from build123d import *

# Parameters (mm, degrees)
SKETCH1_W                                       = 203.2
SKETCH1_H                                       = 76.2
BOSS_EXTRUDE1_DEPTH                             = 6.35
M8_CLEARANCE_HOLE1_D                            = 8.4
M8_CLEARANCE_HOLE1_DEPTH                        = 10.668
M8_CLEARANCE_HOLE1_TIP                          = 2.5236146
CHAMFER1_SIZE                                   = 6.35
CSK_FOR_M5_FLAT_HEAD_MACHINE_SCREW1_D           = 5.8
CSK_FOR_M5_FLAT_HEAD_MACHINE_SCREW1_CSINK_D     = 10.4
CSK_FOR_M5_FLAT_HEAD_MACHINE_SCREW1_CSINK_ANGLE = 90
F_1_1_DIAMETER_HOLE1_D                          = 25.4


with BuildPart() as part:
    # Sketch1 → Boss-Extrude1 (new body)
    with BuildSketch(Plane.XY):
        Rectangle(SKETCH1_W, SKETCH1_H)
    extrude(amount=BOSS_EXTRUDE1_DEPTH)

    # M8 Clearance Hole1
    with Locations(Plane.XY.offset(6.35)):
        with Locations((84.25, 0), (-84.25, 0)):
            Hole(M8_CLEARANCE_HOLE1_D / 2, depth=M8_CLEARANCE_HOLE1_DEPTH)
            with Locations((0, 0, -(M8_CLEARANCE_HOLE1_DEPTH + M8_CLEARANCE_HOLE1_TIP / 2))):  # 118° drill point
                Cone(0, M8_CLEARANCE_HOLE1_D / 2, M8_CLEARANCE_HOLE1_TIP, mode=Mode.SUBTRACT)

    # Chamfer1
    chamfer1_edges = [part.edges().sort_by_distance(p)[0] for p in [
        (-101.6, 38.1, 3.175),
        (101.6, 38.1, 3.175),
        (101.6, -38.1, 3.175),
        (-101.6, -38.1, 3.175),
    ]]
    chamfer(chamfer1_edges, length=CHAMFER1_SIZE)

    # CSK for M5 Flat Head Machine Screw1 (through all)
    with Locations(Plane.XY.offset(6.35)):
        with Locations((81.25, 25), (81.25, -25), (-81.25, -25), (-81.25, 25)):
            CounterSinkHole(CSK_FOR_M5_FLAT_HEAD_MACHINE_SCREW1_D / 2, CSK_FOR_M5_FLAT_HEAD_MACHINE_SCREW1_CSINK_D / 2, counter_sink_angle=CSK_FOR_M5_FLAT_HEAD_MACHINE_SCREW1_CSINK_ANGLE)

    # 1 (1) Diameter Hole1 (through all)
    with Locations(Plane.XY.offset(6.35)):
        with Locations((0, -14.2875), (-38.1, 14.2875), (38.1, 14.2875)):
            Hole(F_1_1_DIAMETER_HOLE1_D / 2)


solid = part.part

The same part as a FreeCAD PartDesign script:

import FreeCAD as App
import Part
import Sketcher
from FreeCAD import Vector
Q = App.Units.Quantity


def edges_at(feature, points):
    """Names of the edges that pass closest to the given points."""
    edges = feature.Shape.Edges
    near = lambda p: min(range(len(edges)), key=lambda i: edges[i].distToShape(Part.Vertex(*p))[0])
    return sorted({f"Edge{near(p) + 1}" for p in points})

doc = App.newDocument("Part")
body = doc.addObject("PartDesign::Body", "Body")

sketch1 = doc.addObject("Sketcher::SketchObject", "Sketch")
body.addObject(sketch1)
sketch1.AttachmentSupport = (doc.XY_Plane, [""])
sketch1.MapMode = "FlatFace"
sketch1.addGeometry([
    Part.LineSegment(Vector(-102, 38, 0), Vector(-102, -38, 0)),
    Part.LineSegment(Vector(-102, -38, 0), Vector(102, -38, 0)),
    Part.LineSegment(Vector(102, -38, 0), Vector(102, 38, 0)),
    Part.LineSegment(Vector(102, 38, 0), Vector(-102, 38, 0)),
], False)
sketch1.addConstraint([
    Sketcher.Constraint("Coincident", 0, 2, 1, 1),
    Sketcher.Constraint("Coincident", 1, 2, 2, 1),
    Sketcher.Constraint("Coincident", 2, 2, 3, 1),
    Sketcher.Constraint("Coincident", 3, 2, 0, 1),
    Sketcher.Constraint("Vertical", 0),
    Sketcher.Constraint("Horizontal", 1),
    Sketcher.Constraint("Vertical", 2),
    Sketcher.Constraint("Horizontal", 3),
    Sketcher.Constraint("Symmetric", 0, 2, 2, 2, -1, 1),
    Sketcher.Constraint("DistanceX", 1, 1, 1, 2, Q("8 in")),
    Sketcher.Constraint("DistanceY", 0, 2, 0, 1, Q("3 in")),
])
pad1 = doc.addObject("PartDesign::Pad", "Pad")
body.addObject(pad1)
pad1.Profile = sketch1
pad1.Length = Q("0.25 in")

sketch2 = doc.addObject("Sketcher::SketchObject", "Sketch001")
body.addObject(sketch2)
sketch2.AttachmentSupport = (doc.XY_Plane, [""])
sketch2.MapMode = "FlatFace"
sketch2.AttachmentOffset = App.Placement(Vector(0, 0, 0.25 * 25.4), App.Rotation())
sketch2.addGeometry([
    Part.Circle(Vector(84.2, 0, 0), Vector(0, 0, 1), 4.2),
    Part.Circle(Vector(-84.2, 0, 0), Vector(0, 0, 1), 4.2),
], False)
sketch2.addConstraint([
    Sketcher.Constraint("Equal", 0, 1),
    Sketcher.Constraint("Symmetric", 0, 3, 1, 3, -1, 1),
    Sketcher.Constraint("PointOnObject", 0, 3, -1),
    Sketcher.Constraint("Diameter", 0, Q("8.4 mm")),
    Sketcher.Constraint("DistanceX", -1, 1, 0, 3, Q("84.25 mm")),
])
doc.recompute()
hole = doc.addObject("PartDesign::Hole", "Hole")
body.addObject(hole)
hole.Profile = sketch2
hole.ThreadType = "None"
hole.Diameter = 8.4
hole.DepthType = "Dimension"
hole.Depth = Q("0.42 in")
hole.DrillPoint = "Angled"
hole.DrillPointAngle = 118
doc.recompute()

chamfer = doc.addObject("PartDesign::Chamfer", "Chamfer")
body.addObject(chamfer)
chamfer.Base = (hole, edges_at(hole, [
    (-101.6, 38.1, 3.175),
    (101.6, 38.1, 3.175),
    (101.6, -38.1, 3.175),
    (-101.6, -38.1, 3.175),
]))
chamfer.Size = Q("0.25 in")

sketch3 = doc.addObject("Sketcher::SketchObject", "Sketch002")
body.addObject(sketch3)
sketch3.AttachmentSupport = (doc.XY_Plane, [""])
sketch3.MapMode = "FlatFace"
sketch3.AttachmentOffset = App.Placement(Vector(0, 0, 0.25 * 25.4), App.Rotation())
sketch3.addGeometry([
    Part.Circle(Vector(81.2, 25, 0), Vector(0, 0, 1), 2.9),
    Part.Circle(Vector(81.2, -25, 0), Vector(0, 0, 1), 2.9),
    Part.Circle(Vector(-81.2, -25, 0), Vector(0, 0, 1), 2.9),
    Part.Circle(Vector(-81.2, 25, 0), Vector(0, 0, 1), 2.9),
], False)
sketch3.addConstraint([
    Sketcher.Constraint("Equal", 0, 1),
    Sketcher.Constraint("Equal", 1, 2),
    Sketcher.Constraint("Equal", 2, 3),
    Sketcher.Constraint("Symmetric", 0, 3, 2, 3, -1, 1),
    Sketcher.Constraint("Symmetric", 1, 3, 3, 3, -1, 1),
    Sketcher.Constraint("Symmetric", 1, 3, 2, 3, -2),
    Sketcher.Constraint("Diameter", 0, Q("5.8 mm")),
    Sketcher.Constraint("DistanceX", -1, 1, 0, 3, Q("81.25 mm")),
    Sketcher.Constraint("DistanceY", -1, 1, 0, 3, Q("25 mm")),
])
doc.recompute()
hole2 = doc.addObject("PartDesign::Hole", "Hole001")
body.addObject(hole2)
hole2.Profile = sketch3
hole2.ThreadType = "None"
hole2.Diameter = 5.8
hole2.DepthType = "ThroughAll"
hole2.HoleCutType = "Countersink"
hole2.HoleCutDiameter = 10.4
hole2.HoleCutCountersinkAngle = 90

sketch4 = doc.addObject("Sketcher::SketchObject", "Sketch003")
body.addObject(sketch4)
sketch4.AttachmentSupport = (doc.XY_Plane, [""])
sketch4.MapMode = "FlatFace"
sketch4.AttachmentOffset = App.Placement(Vector(0, 0, 0.25 * 25.4), App.Rotation())
sketch4.addGeometry([
    Part.Circle(Vector(0, -14, 0), Vector(0, 0, 1), 13),
    Part.Circle(Vector(-38, 14, 0), Vector(0, 0, 1), 13),
    Part.Circle(Vector(38, 14, 0), Vector(0, 0, 1), 13),
], False)
sketch4.addConstraint([
    Sketcher.Constraint("Equal", 0, 1),
    Sketcher.Constraint("Equal", 1, 2),
    Sketcher.Constraint("Symmetric", 1, 3, 2, 3, -2),
    Sketcher.Constraint("PointOnObject", 0, 3, -2),
    Sketcher.Constraint("Diameter", 0, Q("1 in")),
    Sketcher.Constraint("DistanceX", 1, 3, 2, 3, Q("3 in")),
    Sketcher.Constraint("DistanceY", 0, 3, -1, 1, Q("0.5625 in")),
    Sketcher.Constraint("DistanceY", -1, 1, 1, 3, Q("0.5625 in")),
])
doc.recompute()
hole3 = doc.addObject("PartDesign::Hole", "Hole002")
body.addObject(hole3)
hole3.Profile = sketch4
hole3.ThreadType = "None"
hole3.Diameter = Q("1 in")
hole3.DepthType = "ThroughAll"

doc.recompute()
